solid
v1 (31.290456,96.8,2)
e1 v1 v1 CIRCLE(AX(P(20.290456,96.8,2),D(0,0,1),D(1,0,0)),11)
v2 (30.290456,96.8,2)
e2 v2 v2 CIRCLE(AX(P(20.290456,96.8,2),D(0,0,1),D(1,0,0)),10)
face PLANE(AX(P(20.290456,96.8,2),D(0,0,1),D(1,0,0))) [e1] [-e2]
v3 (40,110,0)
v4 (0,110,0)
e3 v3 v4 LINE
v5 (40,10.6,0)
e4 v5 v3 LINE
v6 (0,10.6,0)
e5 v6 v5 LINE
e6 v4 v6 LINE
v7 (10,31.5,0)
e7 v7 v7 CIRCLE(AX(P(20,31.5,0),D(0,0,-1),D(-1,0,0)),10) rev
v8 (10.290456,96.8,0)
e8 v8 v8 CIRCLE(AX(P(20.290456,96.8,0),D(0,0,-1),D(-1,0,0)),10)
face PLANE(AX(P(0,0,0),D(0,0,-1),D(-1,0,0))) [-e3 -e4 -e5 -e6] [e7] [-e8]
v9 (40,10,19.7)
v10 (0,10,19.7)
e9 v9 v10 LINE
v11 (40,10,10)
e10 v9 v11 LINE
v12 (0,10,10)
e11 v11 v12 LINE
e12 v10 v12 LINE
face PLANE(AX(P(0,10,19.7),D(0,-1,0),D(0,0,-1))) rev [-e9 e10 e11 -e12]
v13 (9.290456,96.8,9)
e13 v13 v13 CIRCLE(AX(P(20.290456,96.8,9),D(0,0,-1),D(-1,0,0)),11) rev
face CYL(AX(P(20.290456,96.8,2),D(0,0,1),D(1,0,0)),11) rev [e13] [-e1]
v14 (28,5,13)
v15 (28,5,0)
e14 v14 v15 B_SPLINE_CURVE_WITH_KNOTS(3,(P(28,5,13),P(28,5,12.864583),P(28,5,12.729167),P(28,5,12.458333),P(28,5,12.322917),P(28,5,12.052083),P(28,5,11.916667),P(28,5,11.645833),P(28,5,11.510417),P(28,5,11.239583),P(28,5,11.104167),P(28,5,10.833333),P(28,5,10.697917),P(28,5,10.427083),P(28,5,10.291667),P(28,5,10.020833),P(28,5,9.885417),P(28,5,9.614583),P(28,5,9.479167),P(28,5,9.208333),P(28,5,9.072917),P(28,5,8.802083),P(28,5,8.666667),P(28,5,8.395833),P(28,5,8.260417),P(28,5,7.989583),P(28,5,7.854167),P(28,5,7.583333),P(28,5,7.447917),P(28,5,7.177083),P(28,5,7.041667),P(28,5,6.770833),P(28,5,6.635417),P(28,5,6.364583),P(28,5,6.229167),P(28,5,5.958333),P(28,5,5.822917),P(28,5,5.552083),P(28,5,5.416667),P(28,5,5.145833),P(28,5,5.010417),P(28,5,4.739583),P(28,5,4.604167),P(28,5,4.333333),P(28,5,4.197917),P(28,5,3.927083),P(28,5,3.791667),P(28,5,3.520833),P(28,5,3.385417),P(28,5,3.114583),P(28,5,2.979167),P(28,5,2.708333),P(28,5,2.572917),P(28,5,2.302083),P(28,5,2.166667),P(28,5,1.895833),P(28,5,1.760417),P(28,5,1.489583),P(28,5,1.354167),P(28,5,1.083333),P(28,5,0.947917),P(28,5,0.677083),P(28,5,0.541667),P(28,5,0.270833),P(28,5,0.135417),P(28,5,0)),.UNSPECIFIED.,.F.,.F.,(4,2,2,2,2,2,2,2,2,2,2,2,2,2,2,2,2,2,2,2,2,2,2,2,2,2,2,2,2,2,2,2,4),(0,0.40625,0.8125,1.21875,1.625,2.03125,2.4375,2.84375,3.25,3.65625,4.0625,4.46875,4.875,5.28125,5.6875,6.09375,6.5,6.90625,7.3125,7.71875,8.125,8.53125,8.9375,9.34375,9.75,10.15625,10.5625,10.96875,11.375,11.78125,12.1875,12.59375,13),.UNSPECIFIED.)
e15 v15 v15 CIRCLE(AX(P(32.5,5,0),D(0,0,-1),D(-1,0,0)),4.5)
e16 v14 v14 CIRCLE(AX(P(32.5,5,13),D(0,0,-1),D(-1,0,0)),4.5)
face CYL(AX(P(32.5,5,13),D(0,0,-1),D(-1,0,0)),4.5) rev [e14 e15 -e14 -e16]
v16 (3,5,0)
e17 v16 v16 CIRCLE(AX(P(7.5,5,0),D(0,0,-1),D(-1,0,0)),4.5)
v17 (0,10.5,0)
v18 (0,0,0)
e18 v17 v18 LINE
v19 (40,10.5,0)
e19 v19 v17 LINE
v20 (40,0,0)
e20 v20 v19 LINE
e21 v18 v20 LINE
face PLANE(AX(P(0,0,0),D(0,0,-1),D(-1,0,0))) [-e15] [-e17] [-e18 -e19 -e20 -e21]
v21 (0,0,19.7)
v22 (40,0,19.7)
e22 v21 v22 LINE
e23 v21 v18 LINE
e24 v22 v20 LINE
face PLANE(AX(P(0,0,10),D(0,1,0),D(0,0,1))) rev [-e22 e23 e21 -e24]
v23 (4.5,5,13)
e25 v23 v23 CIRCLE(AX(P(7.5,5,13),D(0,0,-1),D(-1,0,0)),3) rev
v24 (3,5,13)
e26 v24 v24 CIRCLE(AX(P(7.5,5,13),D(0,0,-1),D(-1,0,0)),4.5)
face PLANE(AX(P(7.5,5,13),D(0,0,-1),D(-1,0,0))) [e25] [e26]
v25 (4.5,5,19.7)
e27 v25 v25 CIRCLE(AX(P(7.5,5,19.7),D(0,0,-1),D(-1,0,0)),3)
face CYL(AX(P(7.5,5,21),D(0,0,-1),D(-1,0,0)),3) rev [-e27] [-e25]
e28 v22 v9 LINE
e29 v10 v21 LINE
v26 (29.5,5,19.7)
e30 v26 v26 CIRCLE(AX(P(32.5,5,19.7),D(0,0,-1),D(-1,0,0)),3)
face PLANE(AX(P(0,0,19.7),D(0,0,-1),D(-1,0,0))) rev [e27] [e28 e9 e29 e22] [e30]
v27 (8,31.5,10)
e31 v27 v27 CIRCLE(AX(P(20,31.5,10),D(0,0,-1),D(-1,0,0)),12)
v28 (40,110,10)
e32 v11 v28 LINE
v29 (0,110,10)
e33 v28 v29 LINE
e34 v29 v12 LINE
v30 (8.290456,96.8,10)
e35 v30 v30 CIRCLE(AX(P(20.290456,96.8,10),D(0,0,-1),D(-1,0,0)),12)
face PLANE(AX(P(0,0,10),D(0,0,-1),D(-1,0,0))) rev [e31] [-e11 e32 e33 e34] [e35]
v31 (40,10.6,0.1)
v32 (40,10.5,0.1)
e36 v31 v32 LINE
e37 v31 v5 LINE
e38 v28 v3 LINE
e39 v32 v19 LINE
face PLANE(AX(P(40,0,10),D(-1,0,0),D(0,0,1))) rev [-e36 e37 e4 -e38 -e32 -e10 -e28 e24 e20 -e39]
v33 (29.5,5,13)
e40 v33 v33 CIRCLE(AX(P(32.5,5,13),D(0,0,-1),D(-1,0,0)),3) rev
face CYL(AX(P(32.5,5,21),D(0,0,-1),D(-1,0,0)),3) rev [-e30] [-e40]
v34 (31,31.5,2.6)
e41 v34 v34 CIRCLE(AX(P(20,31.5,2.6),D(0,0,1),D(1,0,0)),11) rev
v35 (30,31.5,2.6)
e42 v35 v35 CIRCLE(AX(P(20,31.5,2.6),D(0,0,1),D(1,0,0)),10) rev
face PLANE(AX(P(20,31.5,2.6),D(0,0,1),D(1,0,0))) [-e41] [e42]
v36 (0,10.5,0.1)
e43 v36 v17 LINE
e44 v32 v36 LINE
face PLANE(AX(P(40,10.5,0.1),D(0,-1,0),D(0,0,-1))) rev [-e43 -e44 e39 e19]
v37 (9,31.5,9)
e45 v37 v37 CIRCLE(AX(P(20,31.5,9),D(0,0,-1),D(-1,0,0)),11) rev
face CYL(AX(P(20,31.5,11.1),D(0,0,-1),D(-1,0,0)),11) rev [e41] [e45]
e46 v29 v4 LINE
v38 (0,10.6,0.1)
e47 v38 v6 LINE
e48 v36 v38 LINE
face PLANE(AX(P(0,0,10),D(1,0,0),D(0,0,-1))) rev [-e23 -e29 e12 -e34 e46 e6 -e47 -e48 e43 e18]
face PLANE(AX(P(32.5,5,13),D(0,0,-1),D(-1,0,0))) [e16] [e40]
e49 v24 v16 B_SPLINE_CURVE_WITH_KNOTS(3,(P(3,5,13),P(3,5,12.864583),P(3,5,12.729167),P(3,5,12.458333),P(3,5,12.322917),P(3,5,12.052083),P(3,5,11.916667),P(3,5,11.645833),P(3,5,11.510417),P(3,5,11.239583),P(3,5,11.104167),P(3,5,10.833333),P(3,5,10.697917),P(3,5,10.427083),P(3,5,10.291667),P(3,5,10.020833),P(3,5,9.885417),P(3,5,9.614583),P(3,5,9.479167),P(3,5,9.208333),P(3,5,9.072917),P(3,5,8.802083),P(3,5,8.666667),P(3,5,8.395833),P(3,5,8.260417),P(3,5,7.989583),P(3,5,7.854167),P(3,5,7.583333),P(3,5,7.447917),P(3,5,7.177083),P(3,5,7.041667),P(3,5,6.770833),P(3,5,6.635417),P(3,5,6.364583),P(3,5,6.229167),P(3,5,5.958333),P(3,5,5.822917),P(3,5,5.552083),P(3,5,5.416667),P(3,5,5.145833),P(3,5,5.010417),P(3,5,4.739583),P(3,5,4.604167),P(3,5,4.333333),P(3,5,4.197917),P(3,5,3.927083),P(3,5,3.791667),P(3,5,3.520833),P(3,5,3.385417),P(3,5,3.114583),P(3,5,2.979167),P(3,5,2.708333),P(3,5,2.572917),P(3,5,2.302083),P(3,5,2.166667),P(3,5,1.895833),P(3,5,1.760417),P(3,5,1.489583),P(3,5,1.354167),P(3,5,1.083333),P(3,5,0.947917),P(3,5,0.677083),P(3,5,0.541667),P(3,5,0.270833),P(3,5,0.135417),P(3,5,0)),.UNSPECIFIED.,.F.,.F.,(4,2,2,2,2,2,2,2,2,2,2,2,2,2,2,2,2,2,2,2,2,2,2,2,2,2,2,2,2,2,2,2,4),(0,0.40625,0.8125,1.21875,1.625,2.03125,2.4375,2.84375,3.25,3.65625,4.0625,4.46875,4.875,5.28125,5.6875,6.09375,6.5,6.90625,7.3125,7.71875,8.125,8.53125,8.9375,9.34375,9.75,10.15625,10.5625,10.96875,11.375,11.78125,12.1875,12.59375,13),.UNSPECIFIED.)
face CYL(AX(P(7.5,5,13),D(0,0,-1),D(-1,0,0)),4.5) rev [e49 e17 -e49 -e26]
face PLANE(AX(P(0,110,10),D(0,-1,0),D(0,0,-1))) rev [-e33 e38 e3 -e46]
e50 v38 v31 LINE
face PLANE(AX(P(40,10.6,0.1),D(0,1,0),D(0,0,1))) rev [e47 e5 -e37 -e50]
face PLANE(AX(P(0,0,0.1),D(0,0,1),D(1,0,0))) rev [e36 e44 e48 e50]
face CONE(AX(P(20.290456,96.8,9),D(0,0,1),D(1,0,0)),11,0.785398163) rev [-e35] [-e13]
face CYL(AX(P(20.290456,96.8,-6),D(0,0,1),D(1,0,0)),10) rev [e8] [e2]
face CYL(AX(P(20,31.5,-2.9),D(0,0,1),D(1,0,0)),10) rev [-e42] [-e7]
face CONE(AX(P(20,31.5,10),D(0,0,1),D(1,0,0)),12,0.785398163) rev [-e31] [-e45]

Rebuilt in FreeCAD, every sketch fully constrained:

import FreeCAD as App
import Part
import Sketcher

V = App.Vector


def edges_at(feature, points):
    """Names of the edges that pass closest to the given points."""
    edges = feature.Shape.Edges
    near = lambda p: min(range(len(edges)), key=lambda i: edges[i].distToShape(Part.Vertex(*p))[0])
    return sorted({f"Edge{near(p) + 1}" for p in points})


def add_polygon(sketch, points):
    """Adds a closed chain of lines whose ends are joined by coincident constraints."""
    first, n = sketch.GeometryCount, len(points)
    for a, b in zip(points, points[1:] + points[:1]):
        sketch.addGeometry(Part.LineSegment(App.Vector(*a, 0), App.Vector(*b, 0)), False)
    for i in range(n):
        sketch.addConstraint(Sketcher.Constraint("Coincident", first + i, 2, first + (i + 1) % n, 1))

doc = App.newDocument("Part")
body = doc.addObject("PartDesign::Body", "Body")

# Sketch on XY plane
sketch1 = body.newObject("Sketcher::SketchObject", "Sketch")
sketch1.AttachmentSupport = (doc.getObject("XY_Plane"), [""])
sketch1.MapMode = "FlatFace"
add_polygon(sketch1, [(0, 110), (0, 0), (40, 0), (40, 110)])  # lines 0-3
sketch1.addConstraint(Sketcher.Constraint("Vertical", 0))
sketch1.addConstraint(Sketcher.Constraint("Horizontal", 1))
sketch1.addConstraint(Sketcher.Constraint("Vertical", 2))
sketch1.addConstraint(Sketcher.Constraint("Horizontal", 3))
sketch1.addConstraint(Sketcher.Constraint("Coincident", 0, 2, -1, 1))
sketch1.addConstraint(Sketcher.Constraint("DistanceX", 1, 1, 1, 2, 40.0))
sketch1.addConstraint(Sketcher.Constraint("DistanceY", 0, 2, 0, 1, 110.0))
pad1 = body.newObject("PartDesign::Pad", "Pad")
pad1.Profile = sketch1
pad1.Length = 10

# Sketch on XY plane
sketch2 = body.newObject("Sketcher::SketchObject", "Sketch001")
sketch2.AttachmentSupport = (doc.getObject("XY_Plane"), [""])
sketch2.MapMode = "FlatFace"
add_polygon(sketch2, [(40, 10.6), (40, 10.5), (0, 10.5), (0, 10.6)])  # lines 0-3
sketch2.addConstraint(Sketcher.Constraint("Vertical", 0))
sketch2.addConstraint(Sketcher.Constraint("Horizontal", 1))
sketch2.addConstraint(Sketcher.Constraint("Vertical", 2))
sketch2.addConstraint(Sketcher.Constraint("Horizontal", 3))
sketch2.addConstraint(Sketcher.Constraint("PointOnObject", 1, 2, -2))
sketch2.addConstraint(Sketcher.Constraint("DistanceX", 1, 2, 1, 1, 40.0))
sketch2.addConstraint(Sketcher.Constraint("DistanceY", 0, 2, 0, 1, 0.1))
sketch2.addConstraint(Sketcher.Constraint("DistanceY", -1, 1, 0, 2, 10.5))
pocket1 = body.newObject("PartDesign::Pocket", "Pocket")
pocket1.Profile = sketch2
pocket1.Length = 0.1
pocket1.Reversed = True

# Sketch on XY plane
sketch3 = body.newObject("Sketcher::SketchObject", "Sketch002")
sketch3.AttachmentSupport = (doc.getObject("XY_Plane"), [""])
sketch3.MapMode = "FlatFace"
sketch3.AttachmentOffset = App.Placement(V(0, 0, 0.1), App.Rotation())
sketch3.addGeometry(Part.Circle(V(20, 31.5, 0), V(0, 0, 1), 11), False)
sketch3.addConstraint(Sketcher.Constraint("Diameter", 0, 22.0))
sketch3.addConstraint(Sketcher.Constraint("DistanceX", -1, 1, 0, 3, 20.0))
sketch3.addConstraint(Sketcher.Constraint("DistanceY", -1, 1, 0, 3, 31.5))
pocket2 = body.newObject("PartDesign::Pocket", "Pocket001")
pocket2.Profile = sketch3
pocket2.Length = 11
pocket2.Reversed = True

# Sketch on XY plane
sketch4 = body.newObject("Sketcher::SketchObject", "Sketch003")
sketch4.AttachmentSupport = (doc.getObject("XY_Plane"), [""])
sketch4.MapMode = "FlatFace"
sketch4.AttachmentOffset = App.Placement(V(0, 0, 10), App.Rotation())
sketch4.addGeometry(Part.Circle(V(20.290456, 96.8, 0), V(0, 0, 1), 11), False)
sketch4.addConstraint(Sketcher.Constraint("Diameter", 0, 22.0))
sketch4.addConstraint(Sketcher.Constraint("DistanceY", -1, 1, 0, 3, 96.8))
sketch4.addConstraint(Sketcher.Constraint("DistanceX", -1, 1, 0, 3, 20.290456))
pocket3 = body.newObject("PartDesign::Pocket", "Pocket002")
pocket3.Profile = sketch4
pocket3.Length = 8

# Sketch on XY plane
sketch5 = body.newObject("Sketcher::SketchObject", "Sketch004")
sketch5.AttachmentSupport = (doc.getObject("XY_Plane"), [""])
sketch5.MapMode = "FlatFace"
sketch5.AttachmentOffset = App.Placement(V(0, 0, 2), App.Rotation())
sketch5.addGeometry(Part.Circle(V(20.290456, 96.8, 0), V(0, 0, 1), 10), False)
sketch5.addConstraint(Sketcher.Constraint("Diameter", 0, 20.0))
sketch5.addConstraint(Sketcher.Constraint("DistanceY", -1, 1, 0, 3, 96.8))
sketch5.addConstraint(Sketcher.Constraint("DistanceX", -1, 1, 0, 3, 20.290456))
pocket4 = body.newObject("PartDesign::Pocket", "Pocket003")
pocket4.Profile = sketch5
pocket4.Length = 8
doc.recompute()

chamfer = body.newObject("PartDesign::Chamfer", "Chamfer")
chamfer.Base = (pocket4, edges_at(pocket4, [(31, 31.5, 10), (9.29, 96.8, 10)]))
chamfer.Size = 1

# Sketch on XY plane
sketch6 = body.newObject("Sketcher::SketchObject", "Sketch005")
sketch6.AttachmentSupport = (doc.getObject("XY_Plane"), [""])
sketch6.MapMode = "FlatFace"
sketch6.AttachmentOffset = App.Placement(V(0, 0, 10), App.Rotation())
add_polygon(sketch6, [(0, 10), (0, 0), (40, 0), (40, 10)])  # lines 0-3
sketch6.addConstraint(Sketcher.Constraint("Vertical", 0))
sketch6.addConstraint(Sketcher.Constraint("Horizontal", 1))
sketch6.addConstraint(Sketcher.Constraint("Vertical", 2))
sketch6.addConstraint(Sketcher.Constraint("Horizontal", 3))
sketch6.addConstraint(Sketcher.Constraint("Coincident", 0, 2, -1, 1))
sketch6.addConstraint(Sketcher.Constraint("DistanceX", 1, 1, 1, 2, 40.0))
sketch6.addConstraint(Sketcher.Constraint("DistanceY", 0, 2, 0, 1, 10.0))
pad2 = body.newObject("PartDesign::Pad", "Pad001")
pad2.Profile = sketch6
pad2.Length = 9.7

# Sketch on XY plane
sketch7 = body.newObject("Sketcher::SketchObject", "Sketch006")
sketch7.AttachmentSupport = (doc.getObject("XY_Plane"), [""])
sketch7.MapMode = "FlatFace"
sketch7.addGeometry(Part.Circle(V(32.5, 5, 0), V(0, 0, 1), 3), False)
sketch7.addGeometry(Part.Circle(V(7.5, 5, 0), V(0, 0, 1), 3), False)
sketch7.addConstraint(Sketcher.Constraint("Equal", 0, 1))
sketch7.addConstraint(Sketcher.Constraint("Horizontal", 0, 3, 1, 3))
sketch7.addConstraint(Sketcher.Constraint("Diameter", 0, 6.0))
sketch7.addConstraint(Sketcher.Constraint("DistanceY", -1, 1, 0, 3, 5.0))
sketch7.addConstraint(Sketcher.Constraint("DistanceX", 1, 3, 0, 3, 25.0))
sketch7.addConstraint(Sketcher.Constraint("DistanceX", -1, 1, 0, 3, 32.5))
pocket5 = body.newObject("PartDesign::Pocket", "Pocket004")
pocket5.Profile = sketch7
pocket5.Length = 21
pocket5.Reversed = True

# Sketch on XY plane
sketch8 = body.newObject("Sketcher::SketchObject", "Sketch007")
sketch8.AttachmentSupport = (doc.getObject("XY_Plane"), [""])
sketch8.MapMode = "FlatFace"
sketch8.addGeometry(Part.Circle(V(32.5, 5, 0), V(0, 0, 1), 4.5), False)
sketch8.addGeometry(Part.Circle(V(7.5, 5, 0), V(0, 0, 1), 4.5), False)
sketch8.addConstraint(Sketcher.Constraint("Equal", 0, 1))
sketch8.addConstraint(Sketcher.Constraint("Horizontal", 0, 3, 1, 3))
sketch8.addConstraint(Sketcher.Constraint("Diameter", 0, 9.0))
sketch8.addConstraint(Sketcher.Constraint("DistanceY", -1, 1, 0, 3, 5.0))
sketch8.addConstraint(Sketcher.Constraint("DistanceX", 1, 3, 0, 3, 25.0))
sketch8.addConstraint(Sketcher.Constraint("DistanceX", -1, 1, 0, 3, 32.5))
pocket6 = body.newObject("PartDesign::Pocket", "Pocket005")
pocket6.Profile = sketch8
pocket6.Length = 13
pocket6.Reversed = True

# Sketch on XY plane
sketch9 = body.newObject("Sketcher::SketchObject", "Sketch008")
sketch9.AttachmentSupport = (doc.getObject("XY_Plane"), [""])
sketch9.MapMode = "FlatFace"
sketch9.AttachmentOffset = App.Placement(V(0, 0, 0.1), App.Rotation())
sketch9.addGeometry(Part.Circle(V(20, 31.5, 0), V(0, 0, 1), 15.675658), False)
sketch9.addConstraint(Sketcher.Constraint("DistanceX", -1, 1, 0, 3, 20.0))
sketch9.addConstraint(Sketcher.Constraint("DistanceY", -1, 1, 0, 3, 31.5))
sketch9.addConstraint(Sketcher.Constraint("Diameter", 0, 31.351317))
pad3 = body.newObject("PartDesign::Pad", "Pad002")
pad3.Profile = sketch9
pad3.Length = 2.5

# Sketch on XY plane
sketch10 = body.newObject("Sketcher::SketchObject", "Sketch009")
sketch10.AttachmentSupport = (doc.getObject("XY_Plane"), [""])
sketch10.MapMode = "FlatFace"
sketch10.AttachmentOffset = App.Placement(V(0, 0, 0.1), App.Rotation())
sketch10.addGeometry(Part.Circle(V(20, 31.5, 0), V(0, 0, 1), 10), False)
sketch10.addConstraint(Sketcher.Constraint("Diameter", 0, 20.0))
sketch10.addConstraint(Sketcher.Constraint("DistanceX", -1, 1, 0, 3, 20.0))
sketch10.addConstraint(Sketcher.Constraint("DistanceY", -1, 1, 0, 3, 31.5))
pocket7 = body.newObject("PartDesign::Pocket", "Pocket006")
pocket7.Profile = sketch10
pocket7.Type = "ThroughAll"
pocket7.Midplane = True

doc.recompute()
